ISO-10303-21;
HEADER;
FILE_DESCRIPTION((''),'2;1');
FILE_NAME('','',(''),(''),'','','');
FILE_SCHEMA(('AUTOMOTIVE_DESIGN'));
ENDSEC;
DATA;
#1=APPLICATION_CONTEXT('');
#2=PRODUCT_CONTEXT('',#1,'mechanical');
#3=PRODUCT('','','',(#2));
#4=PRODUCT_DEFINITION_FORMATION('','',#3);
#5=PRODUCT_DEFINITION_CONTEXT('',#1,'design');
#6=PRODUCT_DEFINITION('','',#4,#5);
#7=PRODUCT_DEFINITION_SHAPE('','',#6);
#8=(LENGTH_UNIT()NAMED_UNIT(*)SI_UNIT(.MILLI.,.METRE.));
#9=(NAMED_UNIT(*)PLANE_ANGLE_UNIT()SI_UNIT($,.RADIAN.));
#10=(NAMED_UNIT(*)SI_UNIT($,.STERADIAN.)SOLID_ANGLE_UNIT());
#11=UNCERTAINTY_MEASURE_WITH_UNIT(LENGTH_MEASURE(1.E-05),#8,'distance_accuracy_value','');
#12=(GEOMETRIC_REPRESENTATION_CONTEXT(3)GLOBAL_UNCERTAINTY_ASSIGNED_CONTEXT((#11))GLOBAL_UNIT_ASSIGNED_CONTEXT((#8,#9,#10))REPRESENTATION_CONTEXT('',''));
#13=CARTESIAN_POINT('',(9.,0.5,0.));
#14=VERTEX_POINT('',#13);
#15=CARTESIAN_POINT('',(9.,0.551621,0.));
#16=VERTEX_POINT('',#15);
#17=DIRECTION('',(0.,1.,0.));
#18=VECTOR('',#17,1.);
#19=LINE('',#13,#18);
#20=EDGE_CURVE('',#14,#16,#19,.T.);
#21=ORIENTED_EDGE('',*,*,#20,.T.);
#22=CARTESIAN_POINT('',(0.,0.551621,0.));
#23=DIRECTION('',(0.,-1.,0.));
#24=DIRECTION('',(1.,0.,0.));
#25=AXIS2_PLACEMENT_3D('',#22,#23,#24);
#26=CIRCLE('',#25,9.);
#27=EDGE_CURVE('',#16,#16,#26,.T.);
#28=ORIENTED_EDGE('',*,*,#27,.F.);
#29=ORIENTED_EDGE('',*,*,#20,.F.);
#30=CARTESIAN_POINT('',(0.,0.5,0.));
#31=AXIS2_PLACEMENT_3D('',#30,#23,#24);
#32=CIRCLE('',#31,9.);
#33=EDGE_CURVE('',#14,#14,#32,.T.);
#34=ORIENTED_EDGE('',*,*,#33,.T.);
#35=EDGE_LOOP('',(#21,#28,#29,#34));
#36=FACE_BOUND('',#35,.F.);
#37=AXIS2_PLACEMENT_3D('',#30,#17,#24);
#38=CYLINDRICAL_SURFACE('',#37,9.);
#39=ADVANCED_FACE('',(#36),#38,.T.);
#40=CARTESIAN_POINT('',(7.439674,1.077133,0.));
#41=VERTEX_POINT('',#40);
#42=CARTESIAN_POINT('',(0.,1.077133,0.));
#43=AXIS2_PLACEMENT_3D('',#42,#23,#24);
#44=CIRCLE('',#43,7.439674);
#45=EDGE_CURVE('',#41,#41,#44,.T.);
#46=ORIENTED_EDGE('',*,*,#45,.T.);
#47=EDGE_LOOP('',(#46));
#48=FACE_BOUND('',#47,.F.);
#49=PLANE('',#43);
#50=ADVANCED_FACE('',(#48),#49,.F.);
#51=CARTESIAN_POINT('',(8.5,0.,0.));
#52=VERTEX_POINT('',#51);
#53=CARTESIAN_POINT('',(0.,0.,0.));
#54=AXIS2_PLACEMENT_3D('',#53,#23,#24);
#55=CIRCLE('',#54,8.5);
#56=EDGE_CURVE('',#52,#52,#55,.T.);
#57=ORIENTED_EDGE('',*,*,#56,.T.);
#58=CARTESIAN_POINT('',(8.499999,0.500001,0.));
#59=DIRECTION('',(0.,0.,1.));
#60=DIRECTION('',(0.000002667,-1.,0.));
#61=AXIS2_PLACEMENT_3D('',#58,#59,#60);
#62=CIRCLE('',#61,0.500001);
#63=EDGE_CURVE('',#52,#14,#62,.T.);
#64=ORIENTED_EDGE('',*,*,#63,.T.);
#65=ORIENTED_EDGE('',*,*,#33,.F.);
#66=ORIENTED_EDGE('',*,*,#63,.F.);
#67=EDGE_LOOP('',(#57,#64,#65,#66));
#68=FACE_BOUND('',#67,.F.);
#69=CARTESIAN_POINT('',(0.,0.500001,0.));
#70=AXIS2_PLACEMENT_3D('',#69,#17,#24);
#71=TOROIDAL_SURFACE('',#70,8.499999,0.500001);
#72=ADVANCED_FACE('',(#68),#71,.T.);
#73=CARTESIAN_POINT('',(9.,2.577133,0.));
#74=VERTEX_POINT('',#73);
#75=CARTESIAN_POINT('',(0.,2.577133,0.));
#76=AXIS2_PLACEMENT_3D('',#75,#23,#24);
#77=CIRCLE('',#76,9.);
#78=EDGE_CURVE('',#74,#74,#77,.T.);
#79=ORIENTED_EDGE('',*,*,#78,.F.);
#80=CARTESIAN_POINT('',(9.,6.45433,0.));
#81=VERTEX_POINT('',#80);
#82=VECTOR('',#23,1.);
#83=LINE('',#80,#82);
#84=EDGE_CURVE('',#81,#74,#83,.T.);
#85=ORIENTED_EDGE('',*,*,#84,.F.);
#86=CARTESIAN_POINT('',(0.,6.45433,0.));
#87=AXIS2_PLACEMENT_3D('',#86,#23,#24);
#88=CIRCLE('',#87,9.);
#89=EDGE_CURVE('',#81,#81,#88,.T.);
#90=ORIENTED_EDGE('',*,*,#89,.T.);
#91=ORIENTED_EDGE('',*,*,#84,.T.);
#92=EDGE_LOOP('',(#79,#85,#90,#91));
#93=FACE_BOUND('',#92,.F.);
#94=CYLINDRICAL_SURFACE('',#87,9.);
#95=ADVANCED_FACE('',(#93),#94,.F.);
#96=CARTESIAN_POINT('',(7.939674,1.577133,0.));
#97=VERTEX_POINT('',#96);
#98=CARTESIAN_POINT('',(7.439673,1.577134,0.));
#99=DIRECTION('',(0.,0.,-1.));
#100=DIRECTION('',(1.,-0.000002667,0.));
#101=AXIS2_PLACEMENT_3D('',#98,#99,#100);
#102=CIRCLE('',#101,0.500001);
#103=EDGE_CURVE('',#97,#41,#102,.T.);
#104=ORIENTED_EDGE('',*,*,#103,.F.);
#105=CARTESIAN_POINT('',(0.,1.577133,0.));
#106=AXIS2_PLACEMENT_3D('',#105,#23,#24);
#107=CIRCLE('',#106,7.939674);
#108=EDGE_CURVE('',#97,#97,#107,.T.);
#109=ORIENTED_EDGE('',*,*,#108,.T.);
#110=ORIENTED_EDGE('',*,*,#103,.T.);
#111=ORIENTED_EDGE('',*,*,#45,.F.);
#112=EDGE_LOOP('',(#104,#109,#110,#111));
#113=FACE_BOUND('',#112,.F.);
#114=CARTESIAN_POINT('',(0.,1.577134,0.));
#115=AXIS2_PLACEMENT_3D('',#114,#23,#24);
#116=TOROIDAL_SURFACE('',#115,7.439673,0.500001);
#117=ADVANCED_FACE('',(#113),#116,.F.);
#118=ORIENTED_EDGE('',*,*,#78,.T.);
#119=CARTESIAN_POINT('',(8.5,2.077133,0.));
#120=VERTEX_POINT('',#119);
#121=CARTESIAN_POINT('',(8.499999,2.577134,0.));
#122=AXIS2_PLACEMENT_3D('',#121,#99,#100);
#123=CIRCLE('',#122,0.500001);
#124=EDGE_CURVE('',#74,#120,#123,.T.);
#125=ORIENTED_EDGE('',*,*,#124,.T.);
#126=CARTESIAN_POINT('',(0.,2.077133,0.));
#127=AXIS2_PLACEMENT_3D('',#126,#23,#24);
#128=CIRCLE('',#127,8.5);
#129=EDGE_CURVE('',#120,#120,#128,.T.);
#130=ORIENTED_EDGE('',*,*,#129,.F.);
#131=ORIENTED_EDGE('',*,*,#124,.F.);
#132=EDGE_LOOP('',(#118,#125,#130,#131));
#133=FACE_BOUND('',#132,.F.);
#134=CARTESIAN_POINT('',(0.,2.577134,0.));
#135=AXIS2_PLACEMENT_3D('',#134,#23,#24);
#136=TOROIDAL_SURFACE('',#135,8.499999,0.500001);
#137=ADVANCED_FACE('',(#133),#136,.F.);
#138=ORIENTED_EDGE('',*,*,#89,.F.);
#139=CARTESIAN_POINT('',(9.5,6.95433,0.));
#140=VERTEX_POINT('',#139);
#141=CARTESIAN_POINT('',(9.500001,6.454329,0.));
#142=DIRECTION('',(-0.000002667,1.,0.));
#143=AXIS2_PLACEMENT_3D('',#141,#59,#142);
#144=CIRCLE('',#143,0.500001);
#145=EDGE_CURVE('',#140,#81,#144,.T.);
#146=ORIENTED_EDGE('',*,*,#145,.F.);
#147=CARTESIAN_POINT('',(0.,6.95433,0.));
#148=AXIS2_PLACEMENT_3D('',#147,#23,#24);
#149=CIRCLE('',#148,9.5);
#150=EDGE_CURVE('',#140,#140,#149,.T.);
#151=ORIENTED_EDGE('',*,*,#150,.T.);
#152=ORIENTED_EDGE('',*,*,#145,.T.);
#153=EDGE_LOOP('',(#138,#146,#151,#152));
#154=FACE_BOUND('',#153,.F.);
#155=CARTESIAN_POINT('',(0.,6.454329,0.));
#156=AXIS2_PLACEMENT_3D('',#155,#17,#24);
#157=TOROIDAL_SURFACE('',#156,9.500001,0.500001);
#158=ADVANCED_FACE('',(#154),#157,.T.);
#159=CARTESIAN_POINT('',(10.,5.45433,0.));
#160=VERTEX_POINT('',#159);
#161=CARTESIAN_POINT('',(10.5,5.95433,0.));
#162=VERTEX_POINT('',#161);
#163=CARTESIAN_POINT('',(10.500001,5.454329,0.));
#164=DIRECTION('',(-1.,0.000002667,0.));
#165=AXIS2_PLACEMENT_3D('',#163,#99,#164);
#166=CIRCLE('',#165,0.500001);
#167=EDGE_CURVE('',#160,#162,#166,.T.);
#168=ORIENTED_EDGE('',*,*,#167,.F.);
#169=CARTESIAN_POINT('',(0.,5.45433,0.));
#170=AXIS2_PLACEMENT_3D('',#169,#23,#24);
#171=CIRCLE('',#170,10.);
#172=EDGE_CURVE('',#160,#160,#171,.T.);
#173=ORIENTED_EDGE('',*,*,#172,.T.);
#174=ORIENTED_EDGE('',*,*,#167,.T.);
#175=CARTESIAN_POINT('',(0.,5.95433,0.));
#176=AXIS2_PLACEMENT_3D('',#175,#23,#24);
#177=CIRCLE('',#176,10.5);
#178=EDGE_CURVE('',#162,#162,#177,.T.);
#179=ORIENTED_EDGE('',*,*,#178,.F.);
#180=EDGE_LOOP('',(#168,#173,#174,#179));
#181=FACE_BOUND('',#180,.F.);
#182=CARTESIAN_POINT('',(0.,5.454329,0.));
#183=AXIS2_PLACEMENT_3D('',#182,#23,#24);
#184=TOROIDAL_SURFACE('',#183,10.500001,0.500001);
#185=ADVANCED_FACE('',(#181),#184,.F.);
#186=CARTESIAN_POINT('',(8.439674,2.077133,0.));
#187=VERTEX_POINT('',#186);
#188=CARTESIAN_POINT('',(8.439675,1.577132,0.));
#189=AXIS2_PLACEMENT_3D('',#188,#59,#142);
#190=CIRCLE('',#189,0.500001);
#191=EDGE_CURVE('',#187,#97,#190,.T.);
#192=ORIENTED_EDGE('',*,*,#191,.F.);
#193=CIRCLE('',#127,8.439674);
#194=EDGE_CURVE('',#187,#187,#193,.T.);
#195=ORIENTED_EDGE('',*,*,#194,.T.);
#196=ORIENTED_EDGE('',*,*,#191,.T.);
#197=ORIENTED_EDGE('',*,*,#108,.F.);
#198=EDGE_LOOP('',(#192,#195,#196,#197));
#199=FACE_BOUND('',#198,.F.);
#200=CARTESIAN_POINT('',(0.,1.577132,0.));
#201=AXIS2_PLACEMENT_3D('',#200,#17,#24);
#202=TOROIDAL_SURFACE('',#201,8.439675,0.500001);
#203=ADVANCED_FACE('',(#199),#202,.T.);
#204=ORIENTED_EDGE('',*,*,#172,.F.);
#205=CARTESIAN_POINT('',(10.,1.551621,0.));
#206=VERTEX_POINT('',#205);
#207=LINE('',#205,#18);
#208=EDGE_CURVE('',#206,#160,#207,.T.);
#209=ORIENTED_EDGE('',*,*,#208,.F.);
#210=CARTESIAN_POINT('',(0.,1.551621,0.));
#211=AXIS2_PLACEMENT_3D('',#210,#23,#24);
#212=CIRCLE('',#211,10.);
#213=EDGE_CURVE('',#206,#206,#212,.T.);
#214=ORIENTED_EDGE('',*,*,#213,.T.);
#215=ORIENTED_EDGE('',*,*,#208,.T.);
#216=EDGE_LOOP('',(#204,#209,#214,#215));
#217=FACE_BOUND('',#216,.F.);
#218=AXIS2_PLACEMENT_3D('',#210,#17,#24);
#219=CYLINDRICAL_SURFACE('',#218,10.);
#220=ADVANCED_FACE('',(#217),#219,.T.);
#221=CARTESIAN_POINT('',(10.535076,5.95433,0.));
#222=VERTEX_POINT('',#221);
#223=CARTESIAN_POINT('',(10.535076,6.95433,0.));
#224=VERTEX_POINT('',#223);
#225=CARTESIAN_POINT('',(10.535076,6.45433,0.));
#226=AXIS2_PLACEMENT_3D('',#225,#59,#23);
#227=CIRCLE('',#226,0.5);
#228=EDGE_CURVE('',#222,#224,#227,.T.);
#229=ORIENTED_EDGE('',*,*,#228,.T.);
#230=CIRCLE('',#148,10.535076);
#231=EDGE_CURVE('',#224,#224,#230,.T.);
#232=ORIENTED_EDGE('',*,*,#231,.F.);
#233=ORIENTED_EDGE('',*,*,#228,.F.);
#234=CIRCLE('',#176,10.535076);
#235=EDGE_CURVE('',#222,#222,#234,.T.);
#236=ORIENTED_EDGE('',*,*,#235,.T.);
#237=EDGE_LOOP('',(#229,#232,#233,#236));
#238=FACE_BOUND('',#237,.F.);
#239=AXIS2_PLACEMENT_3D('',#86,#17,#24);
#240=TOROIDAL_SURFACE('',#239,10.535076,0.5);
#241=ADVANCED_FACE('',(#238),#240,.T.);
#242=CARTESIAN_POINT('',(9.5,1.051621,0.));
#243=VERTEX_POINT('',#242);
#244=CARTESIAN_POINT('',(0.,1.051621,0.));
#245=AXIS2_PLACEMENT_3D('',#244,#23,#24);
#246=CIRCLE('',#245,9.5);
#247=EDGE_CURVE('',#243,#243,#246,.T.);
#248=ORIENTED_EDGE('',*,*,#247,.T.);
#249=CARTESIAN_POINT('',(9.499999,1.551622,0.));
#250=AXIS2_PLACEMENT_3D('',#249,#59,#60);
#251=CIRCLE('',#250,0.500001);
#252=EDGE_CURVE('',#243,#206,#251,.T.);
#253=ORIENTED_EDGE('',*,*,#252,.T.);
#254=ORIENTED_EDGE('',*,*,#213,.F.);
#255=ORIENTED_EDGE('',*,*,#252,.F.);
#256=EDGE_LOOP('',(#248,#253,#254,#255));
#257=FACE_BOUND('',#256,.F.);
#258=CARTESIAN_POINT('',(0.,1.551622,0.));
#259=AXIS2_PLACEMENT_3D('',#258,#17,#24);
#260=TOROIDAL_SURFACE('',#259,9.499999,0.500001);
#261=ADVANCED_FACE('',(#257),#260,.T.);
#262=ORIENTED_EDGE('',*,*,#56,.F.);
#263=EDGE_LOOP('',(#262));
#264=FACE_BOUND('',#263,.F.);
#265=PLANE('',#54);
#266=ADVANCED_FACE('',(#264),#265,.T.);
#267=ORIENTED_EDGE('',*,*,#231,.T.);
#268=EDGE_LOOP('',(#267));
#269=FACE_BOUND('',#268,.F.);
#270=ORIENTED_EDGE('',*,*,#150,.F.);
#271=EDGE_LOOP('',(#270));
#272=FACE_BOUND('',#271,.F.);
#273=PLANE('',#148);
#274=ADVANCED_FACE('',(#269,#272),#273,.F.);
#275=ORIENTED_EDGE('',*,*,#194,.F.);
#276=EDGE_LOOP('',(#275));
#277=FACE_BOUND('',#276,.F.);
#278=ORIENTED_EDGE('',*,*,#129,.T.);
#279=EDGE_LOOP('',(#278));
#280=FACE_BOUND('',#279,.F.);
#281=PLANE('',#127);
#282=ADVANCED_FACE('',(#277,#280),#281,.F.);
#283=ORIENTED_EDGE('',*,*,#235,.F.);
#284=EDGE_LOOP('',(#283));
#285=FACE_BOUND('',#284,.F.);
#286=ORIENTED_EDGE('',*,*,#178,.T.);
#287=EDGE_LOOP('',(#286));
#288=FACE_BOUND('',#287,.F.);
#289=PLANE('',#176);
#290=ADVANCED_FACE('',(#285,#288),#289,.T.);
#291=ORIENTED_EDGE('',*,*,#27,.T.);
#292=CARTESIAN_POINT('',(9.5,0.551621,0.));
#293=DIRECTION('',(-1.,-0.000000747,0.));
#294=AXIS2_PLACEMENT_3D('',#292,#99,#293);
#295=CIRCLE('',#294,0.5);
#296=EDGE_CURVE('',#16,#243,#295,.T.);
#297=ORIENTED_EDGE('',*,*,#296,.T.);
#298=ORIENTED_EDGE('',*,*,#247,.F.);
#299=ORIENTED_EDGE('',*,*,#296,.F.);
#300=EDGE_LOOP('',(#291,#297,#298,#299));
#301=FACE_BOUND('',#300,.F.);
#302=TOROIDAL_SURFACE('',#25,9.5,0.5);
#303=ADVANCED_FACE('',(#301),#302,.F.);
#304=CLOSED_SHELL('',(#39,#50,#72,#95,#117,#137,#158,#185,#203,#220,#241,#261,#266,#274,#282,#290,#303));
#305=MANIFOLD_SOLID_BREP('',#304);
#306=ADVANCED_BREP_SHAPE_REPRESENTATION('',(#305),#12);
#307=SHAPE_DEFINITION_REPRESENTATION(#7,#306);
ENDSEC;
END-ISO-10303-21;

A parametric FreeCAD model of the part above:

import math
import FreeCAD as App
import Part
import Sketcher

V = App.Vector
Q = App.Units.Quantity

doc = App.newDocument("Part")
body = doc.addObject("PartDesign::Body", "Body")

sketch1 = body.newObject("Sketcher::SketchObject", "Sketch")
sketch1.AttachmentSupport = (doc.getObject("XY_Plane"), [""])
sketch1.MapMode = "FlatFace"
sketch1.addGeometry([
    Part.LineSegment(V(0, 1.077133, 0), V(0, 0, 0)),
    Part.LineSegment(V(0, 0, 0), V(8.5, 0, 0)),
    Part.ArcOfCircle(Part.Circle(V(8.499999, 0.500001, 0), V(0, 0, 1), 0.500001), math.radians(-89.999847), math.radians(-0.000153)),
    Part.LineSegment(V(9, 0.5, 0), V(9, 0.551621, 0)),
    Part.ArcOfCircle(Part.Circle(V(9.5, 0.551621, 0), V(0, 0, 1), 0.5), math.radians(89.999957), math.radians(180.000043)),
    Part.ArcOfCircle(Part.Circle(V(9.499999, 1.551622, 0), V(0, 0, 1), 0.500001), math.radians(-89.999847), math.radians(-0.000153)),
    Part.LineSegment(V(10, 1.551621, 0), V(10, 5.45433, 0)),
    Part.ArcOfCircle(Part.Circle(V(10.500001, 5.454329, 0), V(0, 0, 1), 0.500001), math.radians(90.000153), math.radians(179.999847)),
    Part.LineSegment(V(10.5, 5.95433, 0), V(10.535076, 5.95433, 0)),
    Part.ArcOfCircle(Part.Circle(V(10.535076, 6.45433, 0), V(0, 0, 1), 0.5), math.radians(-90), math.radians(90)),
    Part.LineSegment(V(10.535076, 6.95433, 0), V(9.5, 6.95433, 0)),
    Part.ArcOfCircle(Part.Circle(V(9.500001, 6.454329, 0), V(0, 0, 1), 0.500001), math.radians(90.000153), math.radians(179.999847)),
    Part.LineSegment(V(9, 6.45433, 0), V(9, 2.577133, 0)),
    Part.ArcOfCircle(Part.Circle(V(8.499999, 2.577134, 0), V(0, 0, 1), 0.500001), math.radians(-89.999847), math.radians(-0.000153)),
    Part.LineSegment(V(8.5, 2.077133, 0), V(8.439674, 2.077133, 0)),
    Part.ArcOfCircle(Part.Circle(V(8.439675, 1.577132, 0), V(0, 0, 1), 0.500001), math.radians(90.000153), math.radians(179.999847)),
    Part.ArcOfCircle(Part.Circle(V(7.439673, 1.577134, 0), V(0, 0, 1), 0.500001), math.radians(-89.999847), math.radians(-0.000153)),
    Part.LineSegment(V(7.439674, 1.077133, 0), V(0, 1.077133, 0)),
], False)
sketch1.addConstraint([
    Sketcher.Constraint("Coincident", 0, 2, 1, 1),
    Sketcher.Constraint("Coincident", 1, 2, 2, 1),
    Sketcher.Constraint("Coincident", 2, 2, 3, 1),
    Sketcher.Constraint("Tangent", 3, 2, 4, 2),
    Sketcher.Constraint("Coincident", 4, 1, 5, 1),
    Sketcher.Constraint("Coincident", 5, 2, 6, 1),
    Sketcher.Constraint("Coincident", 6, 2, 7, 2),
    Sketcher.Constraint("Coincident", 7, 1, 8, 1),
    Sketcher.Constraint("Tangent", 8, 2, 9, 1),
    Sketcher.Constraint("Tangent", 9, 2, 10, 1),
    Sketcher.Constraint("Coincident", 10, 2, 11, 1),
    Sketcher.Constraint("Coincident", 11, 2, 12, 1),
    Sketcher.Constraint("Coincident", 12, 2, 13, 2),
    Sketcher.Constraint("Coincident", 13, 1, 14, 1),
    Sketcher.Constraint("Coincident", 14, 2, 15, 1),
    Sketcher.Constraint("Tangent", 15, 2, 16, 2),
    Sketcher.Constraint("Coincident", 16, 1, 17, 1),
    Sketcher.Constraint("Coincident", 17, 2, 0, 1),
    Sketcher.Constraint("Vertical", 0),
    Sketcher.Constraint("Horizontal", 1),
    Sketcher.Constraint("Vertical", 3),
    Sketcher.Constraint("Vertical", 6),
    Sketcher.Constraint("Horizontal", 8),
    Sketcher.Constraint("Horizontal", 10),
    Sketcher.Constraint("Vertical", 12),
    Sketcher.Constraint("Horizontal", 14),
    Sketcher.Constraint("Horizontal", 17),
    Sketcher.Constraint("Coincident", 0, 2, -1, 1),
    Sketcher.Constraint("Equal", 2, 4),
    Sketcher.Constraint("Equal", 4, 5),
    Sketcher.Constraint("Equal", 5, 7),
    Sketcher.Constraint("Equal", 7, 9),
    Sketcher.Constraint("Equal", 9, 11),
    Sketcher.Constraint("Equal", 11, 13),
    Sketcher.Constraint("Equal", 13, 15),
    Sketcher.Constraint("Equal", 15, 16),
    Sketcher.Constraint("Horizontal", 7, 3, 6, 2),
    Sketcher.Constraint("Horizontal", 9, 3, 11, 2),
    Sketcher.Constraint("Horizontal", 13, 3, 12, 2),
    Sketcher.Constraint("Horizontal", 16, 3, 15, 2),
    Sketcher.Constraint("Vertical", 4, 3, 5, 3),
    Sketcher.Constraint("Vertical", 4, 3, 11, 3),
    Sketcher.Constraint("Vertical", 13, 3, 1, 2),
    Sketcher.Constraint("Vertical", 11, 3, 4, 1),
    Sketcher.Constraint("Vertical", 4, 1, 10, 2),
    Sketcher.Constraint("Vertical", 1, 2, 13, 1),
    Sketcher.Constraint("Vertical", 15, 3, 14, 2),
    Sketcher.Constraint("Radius", 2, Q("0.500001 mm")),
    Sketcher.Constraint("DistanceX", 1, 1, 1, 2, Q("8.5 mm")),
    Sketcher.Constraint("DistanceY", 4, 3, 5, 2, Q("1 mm")),
    Sketcher.Constraint("DistanceX", 11, 3, 7, 1, Q("0.999999 mm")),
    Sketcher.Constraint("DistanceX", 16, 1, 15, 3, Q("1.000001 mm")),
    Sketcher.Constraint("DistanceY", -1, 1, 2, 2, Q("0.5 mm")),
    Sketcher.Constraint("DistanceY", 3, 1, 3, 2, Q("0.051621 mm")),
    Sketcher.Constraint("DistanceY", 6, 1, 6, 2, Q("3.902709 mm")),
    Sketcher.Constraint("DistanceX", 8, 1, 8, 2, Q("0.035076 mm")),
    Sketcher.Constraint("DistanceX", 14, 2, 14, 1, Q("0.060326 mm")),
    Sketcher.Constraint("DistanceY", 0, 2, 0, 1, Q("1.077133 mm")),
])
revolution = body.newObject("PartDesign::Revolution", "Revolution")
revolution.Profile = sketch1
revolution.ReferenceAxis = (sketch1, ["V_Axis"])
revolution.Angle = 360

doc.recompute()
